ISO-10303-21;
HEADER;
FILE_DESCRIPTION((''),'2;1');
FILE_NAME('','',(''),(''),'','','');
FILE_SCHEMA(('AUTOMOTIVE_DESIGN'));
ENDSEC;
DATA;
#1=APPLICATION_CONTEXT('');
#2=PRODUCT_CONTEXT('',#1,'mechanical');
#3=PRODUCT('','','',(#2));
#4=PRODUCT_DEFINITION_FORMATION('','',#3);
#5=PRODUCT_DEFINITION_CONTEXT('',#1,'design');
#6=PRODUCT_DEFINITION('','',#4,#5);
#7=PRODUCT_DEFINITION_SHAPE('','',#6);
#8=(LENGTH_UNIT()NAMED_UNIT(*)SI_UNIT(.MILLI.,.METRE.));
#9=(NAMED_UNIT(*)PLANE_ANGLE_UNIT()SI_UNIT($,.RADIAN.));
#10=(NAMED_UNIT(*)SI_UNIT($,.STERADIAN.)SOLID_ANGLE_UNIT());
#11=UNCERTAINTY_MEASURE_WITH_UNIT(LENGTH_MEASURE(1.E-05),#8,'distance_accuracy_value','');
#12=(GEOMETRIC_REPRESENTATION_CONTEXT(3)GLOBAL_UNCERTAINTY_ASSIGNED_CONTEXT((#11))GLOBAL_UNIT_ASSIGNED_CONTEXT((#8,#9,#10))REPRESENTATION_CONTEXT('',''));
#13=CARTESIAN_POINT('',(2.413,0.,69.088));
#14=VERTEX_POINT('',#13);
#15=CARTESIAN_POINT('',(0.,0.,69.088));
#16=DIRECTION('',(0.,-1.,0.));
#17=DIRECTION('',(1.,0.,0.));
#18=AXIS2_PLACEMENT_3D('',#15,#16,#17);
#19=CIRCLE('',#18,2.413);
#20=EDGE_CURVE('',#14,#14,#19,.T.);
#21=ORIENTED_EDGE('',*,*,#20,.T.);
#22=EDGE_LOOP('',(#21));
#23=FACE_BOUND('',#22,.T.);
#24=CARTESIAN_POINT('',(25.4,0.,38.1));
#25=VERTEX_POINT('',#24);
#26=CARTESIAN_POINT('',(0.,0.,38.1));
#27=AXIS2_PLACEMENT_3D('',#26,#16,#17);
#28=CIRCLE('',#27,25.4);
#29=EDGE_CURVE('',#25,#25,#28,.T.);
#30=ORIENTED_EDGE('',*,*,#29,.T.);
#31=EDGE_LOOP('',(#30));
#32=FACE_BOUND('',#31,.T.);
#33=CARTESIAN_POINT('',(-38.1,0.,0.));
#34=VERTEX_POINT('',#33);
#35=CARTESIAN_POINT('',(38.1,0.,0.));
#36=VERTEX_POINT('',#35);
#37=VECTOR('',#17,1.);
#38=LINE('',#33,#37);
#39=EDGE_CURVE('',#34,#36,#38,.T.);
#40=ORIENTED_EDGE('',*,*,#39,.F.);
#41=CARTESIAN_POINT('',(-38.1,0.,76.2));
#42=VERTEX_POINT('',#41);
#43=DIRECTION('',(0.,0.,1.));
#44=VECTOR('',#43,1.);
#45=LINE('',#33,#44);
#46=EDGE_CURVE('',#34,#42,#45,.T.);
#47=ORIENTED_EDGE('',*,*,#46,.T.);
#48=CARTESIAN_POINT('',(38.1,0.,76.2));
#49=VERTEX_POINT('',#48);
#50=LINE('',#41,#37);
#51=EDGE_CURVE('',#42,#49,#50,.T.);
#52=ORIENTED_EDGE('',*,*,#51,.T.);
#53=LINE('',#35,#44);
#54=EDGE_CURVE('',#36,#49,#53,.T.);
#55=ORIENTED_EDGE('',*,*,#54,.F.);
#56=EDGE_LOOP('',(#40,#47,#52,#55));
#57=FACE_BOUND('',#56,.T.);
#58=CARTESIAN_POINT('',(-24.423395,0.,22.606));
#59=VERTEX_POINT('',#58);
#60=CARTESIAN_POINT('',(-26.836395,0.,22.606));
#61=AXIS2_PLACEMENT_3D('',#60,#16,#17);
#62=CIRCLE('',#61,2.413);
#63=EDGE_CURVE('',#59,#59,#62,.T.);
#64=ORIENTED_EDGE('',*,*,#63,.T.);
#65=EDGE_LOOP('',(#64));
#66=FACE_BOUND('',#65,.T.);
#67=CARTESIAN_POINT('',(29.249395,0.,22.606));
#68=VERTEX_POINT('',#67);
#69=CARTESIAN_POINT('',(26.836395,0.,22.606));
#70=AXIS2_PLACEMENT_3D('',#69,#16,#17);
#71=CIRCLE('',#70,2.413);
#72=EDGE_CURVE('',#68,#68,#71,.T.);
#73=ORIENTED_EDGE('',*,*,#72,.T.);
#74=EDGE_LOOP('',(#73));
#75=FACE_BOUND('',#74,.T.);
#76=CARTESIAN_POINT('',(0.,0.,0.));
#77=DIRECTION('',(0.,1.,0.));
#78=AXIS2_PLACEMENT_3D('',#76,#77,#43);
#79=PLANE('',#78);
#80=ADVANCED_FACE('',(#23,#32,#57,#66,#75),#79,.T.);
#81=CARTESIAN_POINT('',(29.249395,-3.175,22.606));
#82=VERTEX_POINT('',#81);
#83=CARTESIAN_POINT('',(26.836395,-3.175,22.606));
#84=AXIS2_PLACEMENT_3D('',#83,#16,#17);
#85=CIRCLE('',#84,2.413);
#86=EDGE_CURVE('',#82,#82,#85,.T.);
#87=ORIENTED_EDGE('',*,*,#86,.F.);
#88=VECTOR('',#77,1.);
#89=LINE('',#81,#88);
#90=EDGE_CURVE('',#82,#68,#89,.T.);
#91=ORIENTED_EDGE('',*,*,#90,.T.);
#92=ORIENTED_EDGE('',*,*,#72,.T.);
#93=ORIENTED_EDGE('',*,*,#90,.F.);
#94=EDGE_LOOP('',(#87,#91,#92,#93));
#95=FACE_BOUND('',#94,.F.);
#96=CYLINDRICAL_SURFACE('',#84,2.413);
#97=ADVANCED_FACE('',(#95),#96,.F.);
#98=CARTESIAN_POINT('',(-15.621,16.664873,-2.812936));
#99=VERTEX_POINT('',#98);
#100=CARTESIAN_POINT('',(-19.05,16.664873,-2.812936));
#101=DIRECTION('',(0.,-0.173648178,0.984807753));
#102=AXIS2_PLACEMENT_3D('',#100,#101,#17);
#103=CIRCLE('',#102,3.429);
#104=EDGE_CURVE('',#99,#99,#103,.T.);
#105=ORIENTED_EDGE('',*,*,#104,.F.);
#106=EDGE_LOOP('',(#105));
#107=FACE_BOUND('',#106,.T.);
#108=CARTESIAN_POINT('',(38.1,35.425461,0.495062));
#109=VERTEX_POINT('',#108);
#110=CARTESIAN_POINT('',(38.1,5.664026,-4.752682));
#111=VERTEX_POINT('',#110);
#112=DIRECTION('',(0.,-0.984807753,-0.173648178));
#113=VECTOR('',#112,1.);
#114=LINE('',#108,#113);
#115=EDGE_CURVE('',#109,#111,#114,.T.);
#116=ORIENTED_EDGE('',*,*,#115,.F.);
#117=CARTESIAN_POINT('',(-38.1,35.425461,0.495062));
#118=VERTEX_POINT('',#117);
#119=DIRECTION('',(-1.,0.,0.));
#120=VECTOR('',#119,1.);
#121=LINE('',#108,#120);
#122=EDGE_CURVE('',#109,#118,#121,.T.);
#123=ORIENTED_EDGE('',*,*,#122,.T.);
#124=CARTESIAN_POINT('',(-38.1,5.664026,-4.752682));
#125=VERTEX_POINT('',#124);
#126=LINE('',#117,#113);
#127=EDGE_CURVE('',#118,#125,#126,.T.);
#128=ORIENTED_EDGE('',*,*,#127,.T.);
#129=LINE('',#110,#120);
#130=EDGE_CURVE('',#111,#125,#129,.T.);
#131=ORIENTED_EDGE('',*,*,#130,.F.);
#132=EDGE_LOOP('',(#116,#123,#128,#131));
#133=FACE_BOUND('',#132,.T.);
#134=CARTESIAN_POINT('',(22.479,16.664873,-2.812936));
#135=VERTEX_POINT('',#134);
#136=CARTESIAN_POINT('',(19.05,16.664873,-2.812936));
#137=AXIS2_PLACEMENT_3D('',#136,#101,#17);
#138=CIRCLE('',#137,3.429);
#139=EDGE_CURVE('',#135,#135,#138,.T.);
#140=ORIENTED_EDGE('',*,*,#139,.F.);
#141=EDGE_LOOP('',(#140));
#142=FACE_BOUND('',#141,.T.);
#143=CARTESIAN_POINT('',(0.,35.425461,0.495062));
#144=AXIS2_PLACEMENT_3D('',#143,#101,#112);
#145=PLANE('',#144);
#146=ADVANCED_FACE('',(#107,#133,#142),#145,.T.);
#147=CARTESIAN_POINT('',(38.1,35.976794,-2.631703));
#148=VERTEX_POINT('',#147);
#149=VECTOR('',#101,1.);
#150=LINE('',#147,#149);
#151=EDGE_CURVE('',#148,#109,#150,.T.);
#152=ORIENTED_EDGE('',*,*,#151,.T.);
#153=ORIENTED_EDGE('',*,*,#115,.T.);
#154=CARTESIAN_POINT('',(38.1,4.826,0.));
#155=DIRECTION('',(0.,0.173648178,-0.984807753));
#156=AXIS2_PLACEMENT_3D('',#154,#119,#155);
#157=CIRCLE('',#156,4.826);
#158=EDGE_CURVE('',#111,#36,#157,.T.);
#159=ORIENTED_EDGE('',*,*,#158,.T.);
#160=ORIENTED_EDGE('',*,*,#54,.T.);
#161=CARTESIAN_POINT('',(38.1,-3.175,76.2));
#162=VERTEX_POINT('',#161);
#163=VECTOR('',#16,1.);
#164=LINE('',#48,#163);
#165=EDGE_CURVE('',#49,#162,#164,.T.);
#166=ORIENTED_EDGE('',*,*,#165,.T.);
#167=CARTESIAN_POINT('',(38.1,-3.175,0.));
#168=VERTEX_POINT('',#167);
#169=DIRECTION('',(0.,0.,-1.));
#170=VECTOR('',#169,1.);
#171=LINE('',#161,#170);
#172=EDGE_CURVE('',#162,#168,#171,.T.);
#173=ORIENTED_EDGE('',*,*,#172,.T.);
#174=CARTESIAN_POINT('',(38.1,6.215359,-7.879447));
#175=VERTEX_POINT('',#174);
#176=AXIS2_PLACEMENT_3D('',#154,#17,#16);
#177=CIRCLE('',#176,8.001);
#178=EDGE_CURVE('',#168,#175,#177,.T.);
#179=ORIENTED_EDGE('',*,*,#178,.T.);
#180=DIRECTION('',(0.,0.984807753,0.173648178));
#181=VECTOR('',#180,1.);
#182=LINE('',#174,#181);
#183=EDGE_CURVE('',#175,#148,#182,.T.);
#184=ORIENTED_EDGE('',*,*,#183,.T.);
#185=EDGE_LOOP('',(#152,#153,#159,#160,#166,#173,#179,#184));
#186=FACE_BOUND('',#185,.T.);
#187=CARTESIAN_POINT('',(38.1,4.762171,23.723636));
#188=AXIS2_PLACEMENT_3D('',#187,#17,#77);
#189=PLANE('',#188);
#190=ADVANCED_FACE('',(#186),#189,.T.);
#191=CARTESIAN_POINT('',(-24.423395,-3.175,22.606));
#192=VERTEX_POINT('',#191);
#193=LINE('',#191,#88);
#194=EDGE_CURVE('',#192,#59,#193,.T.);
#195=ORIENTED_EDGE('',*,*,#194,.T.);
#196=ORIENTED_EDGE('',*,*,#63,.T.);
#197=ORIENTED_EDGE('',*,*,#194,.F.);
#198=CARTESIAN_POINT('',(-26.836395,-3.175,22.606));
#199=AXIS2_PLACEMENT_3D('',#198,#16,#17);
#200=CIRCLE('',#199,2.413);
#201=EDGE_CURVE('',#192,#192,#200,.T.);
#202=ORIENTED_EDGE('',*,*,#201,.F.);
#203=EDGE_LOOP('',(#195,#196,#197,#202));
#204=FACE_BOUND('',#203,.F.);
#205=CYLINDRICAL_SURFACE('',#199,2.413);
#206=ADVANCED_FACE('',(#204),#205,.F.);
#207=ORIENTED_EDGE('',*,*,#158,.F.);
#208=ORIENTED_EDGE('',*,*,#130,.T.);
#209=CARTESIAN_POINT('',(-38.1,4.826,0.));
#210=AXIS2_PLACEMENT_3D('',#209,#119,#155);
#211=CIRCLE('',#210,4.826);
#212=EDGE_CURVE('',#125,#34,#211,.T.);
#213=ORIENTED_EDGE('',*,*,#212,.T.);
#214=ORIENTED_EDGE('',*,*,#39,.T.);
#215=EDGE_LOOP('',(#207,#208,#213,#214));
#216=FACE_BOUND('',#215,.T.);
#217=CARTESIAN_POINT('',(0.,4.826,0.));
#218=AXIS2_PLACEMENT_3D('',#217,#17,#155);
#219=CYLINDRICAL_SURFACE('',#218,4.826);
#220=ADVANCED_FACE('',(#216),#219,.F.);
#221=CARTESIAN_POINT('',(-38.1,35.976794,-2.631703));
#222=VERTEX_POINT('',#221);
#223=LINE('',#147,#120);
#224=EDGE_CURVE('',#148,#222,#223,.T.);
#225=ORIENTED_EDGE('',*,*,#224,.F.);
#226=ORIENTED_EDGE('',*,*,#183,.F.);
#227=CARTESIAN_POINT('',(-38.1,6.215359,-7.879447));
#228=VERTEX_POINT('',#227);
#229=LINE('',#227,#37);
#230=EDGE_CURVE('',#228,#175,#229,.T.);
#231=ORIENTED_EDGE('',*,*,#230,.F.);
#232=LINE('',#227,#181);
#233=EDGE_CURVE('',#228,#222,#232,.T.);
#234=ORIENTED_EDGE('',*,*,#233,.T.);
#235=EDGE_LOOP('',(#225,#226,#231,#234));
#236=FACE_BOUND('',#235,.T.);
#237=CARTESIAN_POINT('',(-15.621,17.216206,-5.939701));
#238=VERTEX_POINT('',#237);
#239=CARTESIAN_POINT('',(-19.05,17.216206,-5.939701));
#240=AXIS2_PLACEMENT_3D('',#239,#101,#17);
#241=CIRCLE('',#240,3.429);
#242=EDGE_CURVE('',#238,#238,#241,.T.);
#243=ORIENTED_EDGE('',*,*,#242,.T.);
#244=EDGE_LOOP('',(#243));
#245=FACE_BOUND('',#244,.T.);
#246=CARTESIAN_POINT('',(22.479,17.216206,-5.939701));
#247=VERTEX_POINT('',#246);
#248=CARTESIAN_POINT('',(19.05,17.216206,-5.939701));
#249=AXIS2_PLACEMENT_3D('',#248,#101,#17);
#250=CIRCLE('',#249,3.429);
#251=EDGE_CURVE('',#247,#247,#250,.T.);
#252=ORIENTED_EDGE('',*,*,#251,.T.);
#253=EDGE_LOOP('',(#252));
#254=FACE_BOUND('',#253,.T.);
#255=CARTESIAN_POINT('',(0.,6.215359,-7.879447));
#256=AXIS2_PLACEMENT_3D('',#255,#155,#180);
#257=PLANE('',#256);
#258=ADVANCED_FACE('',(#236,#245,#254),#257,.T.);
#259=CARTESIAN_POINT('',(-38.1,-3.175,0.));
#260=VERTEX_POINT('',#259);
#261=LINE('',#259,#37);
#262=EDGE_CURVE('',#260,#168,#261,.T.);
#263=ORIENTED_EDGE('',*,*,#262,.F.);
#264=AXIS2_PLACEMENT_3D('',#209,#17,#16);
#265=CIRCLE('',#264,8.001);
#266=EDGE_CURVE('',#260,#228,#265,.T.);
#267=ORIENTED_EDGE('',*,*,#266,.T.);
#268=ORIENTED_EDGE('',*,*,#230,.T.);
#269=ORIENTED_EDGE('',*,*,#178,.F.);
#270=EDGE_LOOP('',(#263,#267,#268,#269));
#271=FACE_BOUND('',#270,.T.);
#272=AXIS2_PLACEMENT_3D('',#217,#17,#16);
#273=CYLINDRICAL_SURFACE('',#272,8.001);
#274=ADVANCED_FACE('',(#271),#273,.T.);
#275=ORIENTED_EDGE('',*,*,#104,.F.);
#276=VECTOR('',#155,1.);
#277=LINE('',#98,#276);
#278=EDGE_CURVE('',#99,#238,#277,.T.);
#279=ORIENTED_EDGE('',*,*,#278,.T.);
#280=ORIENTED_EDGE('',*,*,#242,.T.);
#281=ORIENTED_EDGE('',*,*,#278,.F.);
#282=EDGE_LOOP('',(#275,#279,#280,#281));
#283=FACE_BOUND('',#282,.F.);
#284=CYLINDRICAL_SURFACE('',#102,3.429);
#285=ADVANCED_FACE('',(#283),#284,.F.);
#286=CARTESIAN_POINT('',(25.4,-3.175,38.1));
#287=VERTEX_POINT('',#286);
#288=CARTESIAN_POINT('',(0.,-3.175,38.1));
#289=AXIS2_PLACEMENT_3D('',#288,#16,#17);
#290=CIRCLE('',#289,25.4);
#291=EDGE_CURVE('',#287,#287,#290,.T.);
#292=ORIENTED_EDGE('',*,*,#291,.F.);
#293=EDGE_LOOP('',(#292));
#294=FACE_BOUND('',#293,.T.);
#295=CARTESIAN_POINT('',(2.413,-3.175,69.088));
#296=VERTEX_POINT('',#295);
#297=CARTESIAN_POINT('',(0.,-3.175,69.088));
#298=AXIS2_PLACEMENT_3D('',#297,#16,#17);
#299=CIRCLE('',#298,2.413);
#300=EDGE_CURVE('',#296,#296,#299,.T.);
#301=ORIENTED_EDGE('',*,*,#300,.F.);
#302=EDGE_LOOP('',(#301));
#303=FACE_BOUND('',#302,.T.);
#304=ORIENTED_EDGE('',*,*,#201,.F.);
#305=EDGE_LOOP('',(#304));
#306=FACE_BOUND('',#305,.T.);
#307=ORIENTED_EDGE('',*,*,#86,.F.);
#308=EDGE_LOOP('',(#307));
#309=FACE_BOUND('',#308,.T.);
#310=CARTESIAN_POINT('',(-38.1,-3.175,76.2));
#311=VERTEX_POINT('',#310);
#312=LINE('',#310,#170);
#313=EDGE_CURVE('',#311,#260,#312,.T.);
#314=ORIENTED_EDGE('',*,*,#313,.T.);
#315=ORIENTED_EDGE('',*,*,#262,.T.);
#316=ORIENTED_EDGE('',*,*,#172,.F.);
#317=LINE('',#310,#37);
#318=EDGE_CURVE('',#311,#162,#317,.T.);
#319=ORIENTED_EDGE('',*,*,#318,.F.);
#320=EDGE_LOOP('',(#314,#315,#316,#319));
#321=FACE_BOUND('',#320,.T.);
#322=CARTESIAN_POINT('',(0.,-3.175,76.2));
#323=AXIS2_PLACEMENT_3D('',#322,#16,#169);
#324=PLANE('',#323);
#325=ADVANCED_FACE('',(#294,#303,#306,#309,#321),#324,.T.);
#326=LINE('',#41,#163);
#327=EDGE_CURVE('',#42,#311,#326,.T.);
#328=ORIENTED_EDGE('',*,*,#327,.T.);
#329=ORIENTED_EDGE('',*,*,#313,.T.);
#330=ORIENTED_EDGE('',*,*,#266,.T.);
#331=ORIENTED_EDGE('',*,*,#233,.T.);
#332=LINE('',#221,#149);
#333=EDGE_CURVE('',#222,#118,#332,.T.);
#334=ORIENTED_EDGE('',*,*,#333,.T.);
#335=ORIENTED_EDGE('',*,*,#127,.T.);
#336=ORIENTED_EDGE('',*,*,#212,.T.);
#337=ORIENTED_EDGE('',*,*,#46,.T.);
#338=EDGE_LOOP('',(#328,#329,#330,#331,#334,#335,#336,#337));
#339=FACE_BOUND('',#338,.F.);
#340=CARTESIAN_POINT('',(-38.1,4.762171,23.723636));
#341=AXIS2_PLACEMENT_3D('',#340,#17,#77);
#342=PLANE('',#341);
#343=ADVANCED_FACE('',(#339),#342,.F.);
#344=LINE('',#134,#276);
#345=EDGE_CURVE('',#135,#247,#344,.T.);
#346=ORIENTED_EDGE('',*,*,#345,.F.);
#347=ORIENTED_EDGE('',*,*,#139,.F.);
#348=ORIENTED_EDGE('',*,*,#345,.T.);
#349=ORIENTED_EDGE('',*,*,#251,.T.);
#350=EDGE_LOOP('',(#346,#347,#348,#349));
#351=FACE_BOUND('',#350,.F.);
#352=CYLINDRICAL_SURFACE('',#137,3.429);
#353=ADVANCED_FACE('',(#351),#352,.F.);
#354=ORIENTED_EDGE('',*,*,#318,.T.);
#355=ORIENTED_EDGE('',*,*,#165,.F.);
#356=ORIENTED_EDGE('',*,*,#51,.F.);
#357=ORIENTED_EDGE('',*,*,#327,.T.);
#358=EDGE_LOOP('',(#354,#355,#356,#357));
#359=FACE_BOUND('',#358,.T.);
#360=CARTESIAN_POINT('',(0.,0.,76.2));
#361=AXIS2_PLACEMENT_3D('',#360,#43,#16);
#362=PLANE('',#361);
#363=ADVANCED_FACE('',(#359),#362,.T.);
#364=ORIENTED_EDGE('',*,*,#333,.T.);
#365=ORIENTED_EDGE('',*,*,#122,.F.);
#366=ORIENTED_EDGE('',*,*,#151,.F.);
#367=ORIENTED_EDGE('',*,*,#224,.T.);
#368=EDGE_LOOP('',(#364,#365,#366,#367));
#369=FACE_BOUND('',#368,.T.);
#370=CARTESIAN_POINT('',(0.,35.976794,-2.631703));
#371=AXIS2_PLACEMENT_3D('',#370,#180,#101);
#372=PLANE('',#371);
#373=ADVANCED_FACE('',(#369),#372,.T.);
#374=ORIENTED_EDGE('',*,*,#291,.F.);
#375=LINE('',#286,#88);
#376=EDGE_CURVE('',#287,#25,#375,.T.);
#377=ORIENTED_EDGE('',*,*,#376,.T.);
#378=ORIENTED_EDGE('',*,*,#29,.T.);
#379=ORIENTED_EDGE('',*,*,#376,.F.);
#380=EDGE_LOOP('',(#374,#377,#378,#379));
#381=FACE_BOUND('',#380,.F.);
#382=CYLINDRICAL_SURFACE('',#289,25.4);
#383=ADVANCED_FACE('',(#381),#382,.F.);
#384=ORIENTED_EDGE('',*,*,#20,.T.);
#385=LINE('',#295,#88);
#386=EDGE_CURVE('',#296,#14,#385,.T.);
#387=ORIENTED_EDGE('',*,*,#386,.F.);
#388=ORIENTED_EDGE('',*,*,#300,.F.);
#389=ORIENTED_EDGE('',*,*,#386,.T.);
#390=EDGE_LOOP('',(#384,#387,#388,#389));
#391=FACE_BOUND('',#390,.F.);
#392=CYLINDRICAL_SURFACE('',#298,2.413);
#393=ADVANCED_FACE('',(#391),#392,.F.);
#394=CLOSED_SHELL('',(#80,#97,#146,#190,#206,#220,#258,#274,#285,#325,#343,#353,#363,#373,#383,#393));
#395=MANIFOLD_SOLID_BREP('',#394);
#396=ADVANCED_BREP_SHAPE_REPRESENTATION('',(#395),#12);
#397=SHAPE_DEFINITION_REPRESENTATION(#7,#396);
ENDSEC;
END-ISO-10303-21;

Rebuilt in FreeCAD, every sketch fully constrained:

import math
import FreeCAD as App
import Part
import Sketcher
from FreeCAD import Vector
Q = App.Units.Quantity

doc = App.newDocument("Part")
body = doc.addObject("PartDesign::Body", "Body")

# Sketch on YZ plane
sketch1 = body.newObject("Sketcher::SketchObject", "Sketch")
sketch1.AttachmentSupport = (doc.getObject("YZ_Plane"), [""])
sketch1.MapMode = "FlatFace"
sketch1.addGeometry([
    Part.ArcOfCircle(Part.Circle(Vector(4.8, 0, 0), Vector(0, 0, 1), 4.8), math.radians(180), math.radians(280)),  # 0
    Part.LineSegment(Vector(0, 0, 0), Vector(0, 76.2, 0)),  # 1
    Part.LineSegment(Vector(0, 76.2, 0), Vector(-3.2, 76.2, 0)),  # 2
    Part.LineSegment(Vector(-3.2, 76.2, 0), Vector(-3.2, 0, 0)),  # 3
    Part.ArcOfCircle(Part.Circle(Vector(4.8, 0, 0), Vector(0, 0, 1), 8), math.radians(180), math.radians(280)),  # 4
    Part.LineSegment(Vector(6.2, -7.9, 0), Vector(36, -2.6, 0)),  # 5
    Part.LineSegment(Vector(36, -2.6, 0), Vector(35.4, 0.5, 0)),  # 6
    Part.LineSegment(Vector(35.4, 0.5, 0), Vector(5.7, -4.8, 0)),  # 7
], False)
sketch1.addConstraint([
    Sketcher.Constraint("Tangent", 0, 1, 1, 1),
    Sketcher.Constraint("Coincident", 1, 2, 2, 1),
    Sketcher.Constraint("Coincident", 2, 2, 3, 1),
    Sketcher.Constraint("Tangent", 3, 2, 4, 1),
    Sketcher.Constraint("Tangent", 4, 2, 5, 1),
    Sketcher.Constraint("Coincident", 5, 2, 6, 1),
    Sketcher.Constraint("Coincident", 6, 2, 7, 1),
    Sketcher.Constraint("Tangent", 7, 2, 0, 2),
    Sketcher.Constraint("Vertical", 1),
    Sketcher.Constraint("Horizontal", 2),
    Sketcher.Constraint("Vertical", 3),
    Sketcher.Constraint("Coincident", 0, 1, -1, 1),
    Sketcher.Constraint("Coincident", 4, 3, 0, 3),
    Sketcher.Constraint("Perpendicular", 5, 6),
    Sketcher.Constraint("Perpendicular", 6, 7),
    Sketcher.Constraint("DistanceY", 1, 1, 1, 2, Q("3 in")),
    Sketcher.Constraint("Radius", 0, Q("0.19 in")),
    Sketcher.Constraint("Angle", 5, Q("10 deg")),
    Sketcher.Constraint("Radius", 4, Q("0.315 in")),
    Sketcher.Constraint("DistanceX", -1, 1, 6, 2, 35.425461),
])
pad1 = body.newObject("PartDesign::Pad", "Pad")
pad1.Profile = sketch1
pad1.Length = Q("3 in")
pad1.Midplane = True

# Sketch on XZ plane
sketch2 = body.newObject("Sketcher::SketchObject", "Sketch001")
sketch2.AttachmentSupport = (doc.getObject("XZ_Plane"), [""])
sketch2.MapMode = "FlatFace"
sketch2.AttachmentOffset = App.Placement(Vector(0, 0, 0.125 * 25.4), App.Rotation())
sketch2.addGeometry([
    Part.Circle(Vector(0, 38.1, 0), Vector(0, 0, 1), 25.4),
    Part.Circle(Vector(-26.8, 22.6, 0), Vector(0, 0, 1), 2.4),
    Part.Circle(Vector(0, 69.1, 0), Vector(0, 0, 1), 2.4),
    Part.Circle(Vector(26.8, 22.6, 0), Vector(0, 0, 1), 2.4),
], False)
sketch2.addConstraint([
    Sketcher.Constraint("Equal", 1, 2),
    Sketcher.Constraint("Equal", 2, 3),
    Sketcher.Constraint("Symmetric", 1, 3, 3, 3, -2),
    Sketcher.Constraint("PointOnObject", 0, 3, -2),
    Sketcher.Constraint("PointOnObject", 2, 3, -2),
    Sketcher.Constraint("Diameter", 0, Q("2 in")),
    Sketcher.Constraint("Diameter", 1, Q("0.19 in")),
    Sketcher.Constraint("DistanceY", -1, 1, 0, 3, Q("1.5 in")),
    Sketcher.Constraint("DistanceY", -1, 1, 1, 3, Q("0.89 in")),
    Sketcher.Constraint("DistanceY", -1, 1, 2, 3, Q("2.72 in")),
    Sketcher.Constraint("DistanceX", 1, 3, 3, 3, 53.67279),
])
pocket1 = body.newObject("PartDesign::Pocket", "Pocket")
pocket1.Profile = sketch2
pocket1.Length = Q("1 in")

# Sketch on an angled plane
sketch3 = body.newObject("Sketcher::SketchObject", "Sketch002")
sketch3.Placement = App.Placement(Vector(0, 0.983548, -5.577977), App.Rotation(Vector(1, 0, 0), Vector(0, 0.984807753, 0.173648178), Vector(0, -0.173648178, 0.984807753), "ZXY"))
sketch3.addGeometry([
    Part.Circle(Vector(19.1, 15.9, 0), Vector(0, 0, 1), 3.4),
    Part.Circle(Vector(-19.1, 15.9, 0), Vector(0, 0, 1), 3.4),
], False)
sketch3.addConstraint([
    Sketcher.Constraint("Equal", 0, 1),
    Sketcher.Constraint("Symmetric", 0, 3, 1, 3, -2),
    Sketcher.Constraint("Diameter", 0, Q("0.27 in")),
    Sketcher.Constraint("DistanceX", 1, 3, 0, 3, Q("1.5 in")),
    Sketcher.Constraint("DistanceY", -1, 1, 0, 3, 15.923235),
])
pocket2 = body.newObject("PartDesign::Pocket", "Pocket001")
pocket2.Profile = sketch3
pocket2.Length = Q("1 in")

doc.recompute()
